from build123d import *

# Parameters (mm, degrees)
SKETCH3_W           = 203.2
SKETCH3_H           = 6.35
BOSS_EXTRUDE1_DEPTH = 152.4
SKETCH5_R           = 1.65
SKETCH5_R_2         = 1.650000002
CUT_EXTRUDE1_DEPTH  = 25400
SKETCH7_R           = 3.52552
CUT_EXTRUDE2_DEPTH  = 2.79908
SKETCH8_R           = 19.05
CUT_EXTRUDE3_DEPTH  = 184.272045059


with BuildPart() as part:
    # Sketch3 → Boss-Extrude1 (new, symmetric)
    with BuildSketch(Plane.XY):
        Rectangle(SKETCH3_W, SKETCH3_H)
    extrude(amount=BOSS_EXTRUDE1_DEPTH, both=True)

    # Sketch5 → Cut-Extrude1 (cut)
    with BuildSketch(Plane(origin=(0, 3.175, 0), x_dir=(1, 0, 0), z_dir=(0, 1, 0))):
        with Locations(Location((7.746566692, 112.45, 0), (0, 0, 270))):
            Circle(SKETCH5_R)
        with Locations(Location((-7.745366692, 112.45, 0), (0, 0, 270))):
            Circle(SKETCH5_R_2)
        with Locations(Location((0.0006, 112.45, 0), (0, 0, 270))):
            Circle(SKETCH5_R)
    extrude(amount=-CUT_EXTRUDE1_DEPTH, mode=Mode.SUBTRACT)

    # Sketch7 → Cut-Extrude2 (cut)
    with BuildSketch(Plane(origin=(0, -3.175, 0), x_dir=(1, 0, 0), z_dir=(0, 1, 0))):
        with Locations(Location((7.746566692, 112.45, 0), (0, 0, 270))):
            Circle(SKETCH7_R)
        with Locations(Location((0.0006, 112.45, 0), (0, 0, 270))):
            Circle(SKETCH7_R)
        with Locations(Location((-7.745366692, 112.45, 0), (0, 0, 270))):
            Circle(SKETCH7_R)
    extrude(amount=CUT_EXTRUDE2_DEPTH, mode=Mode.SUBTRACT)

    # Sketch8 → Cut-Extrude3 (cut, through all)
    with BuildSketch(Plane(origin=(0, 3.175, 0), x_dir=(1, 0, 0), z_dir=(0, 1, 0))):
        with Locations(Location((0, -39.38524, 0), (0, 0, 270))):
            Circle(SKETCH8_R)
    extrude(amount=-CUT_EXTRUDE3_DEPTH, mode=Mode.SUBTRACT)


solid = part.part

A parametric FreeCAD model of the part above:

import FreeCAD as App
import Part
import Sketcher
from FreeCAD import Vector
Q = App.Units.Quantity

doc = App.newDocument("Part")
body = doc.addObject("PartDesign::Body", "Body")

# Sketch on XY plane
sketch1 = body.newObject("Sketcher::SketchObject", "Sketch")
sketch1.AttachmentSupport = (doc.getObject("XY_Plane"), [""])
sketch1.MapMode = "FlatFace"
sketch1.addGeometry([
    Part.LineSegment(Vector(-102, 3, 0), Vector(-102, -3, 0)),
    Part.LineSegment(Vector(-102, -3, 0), Vector(102, -3, 0)),
    Part.LineSegment(Vector(102, -3, 0), Vector(102, 3, 0)),
    Part.LineSegment(Vector(102, 3, 0), Vector(-102, 3, 0)),
], False)
sketch1.addConstraint([
    Sketcher.Constraint("Coincident", 0, 2, 1, 1),
    Sketcher.Constraint("Coincident", 1, 2, 2, 1),
    Sketcher.Constraint("Coincident", 2, 2, 3, 1),
    Sketcher.Constraint("Coincident", 3, 2, 0, 1),
    Sketcher.Constraint("Vertical", 0),
    Sketcher.Constraint("Horizontal", 1),
    Sketcher.Constraint("Vertical", 2),
    Sketcher.Constraint("Horizontal", 3),
    Sketcher.Constraint("Symmetric", 0, 2, 2, 2, -1, 1),
    Sketcher.Constraint("DistanceX", 1, 1, 1, 2, Q("8 in")),
    Sketcher.Constraint("DistanceY", 0, 2, 0, 1, Q("0.25 in")),
])
pad1 = body.newObject("PartDesign::Pad", "Pad")
pad1.Profile = sketch1
pad1.Length = Q("12 in")
pad1.Midplane = True

# Sketch on XZ plane
sketch2 = body.newObject("Sketcher::SketchObject", "Sketch001")
sketch2.AttachmentSupport = (doc.getObject("XZ_Plane"), [""])
sketch2.MapMode = "FlatFace"
sketch2.AttachmentOffset = App.Placement(Vector(0, 0, -0.125 * 25.4), App.Rotation())
sketch2.addGeometry([
    Part.Circle(Vector(7.7, -112.5, 0), Vector(0, 0, 1), 1.6),
    Part.Circle(Vector(-7.7, -112.5, 0), Vector(0, 0, 1), 1.7),
    Part.Circle(Vector(0, -112.5, 0), Vector(0, 0, 1), 1.6),
], False)
sketch2.addConstraint([
    Sketcher.Constraint("Equal", 0, 1),
    Sketcher.Constraint("Equal", 1, 2),
    Sketcher.Constraint("Horizontal", 0, 3, 1, 3),
    Sketcher.Constraint("Horizontal", 1, 3, 2, 3),
    Sketcher.Constraint("Diameter", 0, 3.3),
    Sketcher.Constraint("DistanceY", 0, 3, -1, 1, 112.45),
    Sketcher.Constraint("DistanceX", -1, 1, 2, 3, 0.0006),
    Sketcher.Constraint("DistanceX", -1, 1, 0, 3, 7.746567),
    Sketcher.Constraint("DistanceX", 1, 3, -1, 1, 7.745367),
])
pocket1 = body.newObject("PartDesign::Pocket", "Pocket")
pocket1.Profile = sketch2
pocket1.Length = Q("1000 in")
pocket1.Reversed = True

# Sketch on XZ plane
sketch3 = body.newObject("Sketcher::SketchObject", "Sketch002")
sketch3.AttachmentSupport = (doc.getObject("XZ_Plane"), [""])
sketch3.MapMode = "FlatFace"
sketch3.AttachmentOffset = App.Placement(Vector(0, 0, 0.125 * 25.4), App.Rotation())
sketch3.addGeometry([
    Part.Circle(Vector(7.7, -112.5, 0), Vector(0, 0, 1), 3.5),
    Part.Circle(Vector(0, -112.5, 0), Vector(0, 0, 1), 3.5),
    Part.Circle(Vector(-7.7, -112.5, 0), Vector(0, 0, 1), 3.5),
], False)
sketch3.addConstraint([
    Sketcher.Constraint("Equal", 0, 1),
    Sketcher.Constraint("Equal", 1, 2),
    Sketcher.Constraint("Horizontal", 0, 3, 1, 3),
    Sketcher.Constraint("Horizontal", 1, 3, 2, 3),
    Sketcher.Constraint("Diameter", 0, Q("0.2776 in")),
    Sketcher.Constraint("DistanceY", 0, 3, -1, 1, 112.45),
    Sketcher.Constraint("DistanceX", -1, 1, 1, 3, 0.0006),
    Sketcher.Constraint("DistanceX", -1, 1, 0, 3, 7.746567),
    Sketcher.Constraint("DistanceX", 2, 3, -1, 1, 7.745367),
])
pocket2 = body.newObject("PartDesign::Pocket", "Pocket001")
pocket2.Profile = sketch3
pocket2.Length = Q("0.1102 in")

# Sketch on XZ plane
sketch4 = body.newObject("Sketcher::SketchObject", "Sketch003")
sketch4.AttachmentSupport = (doc.getObject("XZ_Plane"), [""])
sketch4.MapMode = "FlatFace"
sketch4.AttachmentOffset = App.Placement(Vector(0, 0, -0.125 * 25.4), App.Rotation())
sketch4.addGeometry(Part.Circle(Vector(0, 39, 0), Vector(0, 0, 1), 19), False)
sketch4.addConstraint([
    Sketcher.Constraint("PointOnObject", 0, 3, -2),
    Sketcher.Constraint("Diameter", 0, Q("1.5 in")),
    Sketcher.Constraint("DistanceY", -1, 1, 0, 3, Q("1.5506 in")),
])
pocket3 = body.newObject("PartDesign::Pocket", "Pocket002")
pocket3.Profile = sketch4
pocket3.Type = "ThroughAll"
pocket3.Reversed = True

doc.recompute()
